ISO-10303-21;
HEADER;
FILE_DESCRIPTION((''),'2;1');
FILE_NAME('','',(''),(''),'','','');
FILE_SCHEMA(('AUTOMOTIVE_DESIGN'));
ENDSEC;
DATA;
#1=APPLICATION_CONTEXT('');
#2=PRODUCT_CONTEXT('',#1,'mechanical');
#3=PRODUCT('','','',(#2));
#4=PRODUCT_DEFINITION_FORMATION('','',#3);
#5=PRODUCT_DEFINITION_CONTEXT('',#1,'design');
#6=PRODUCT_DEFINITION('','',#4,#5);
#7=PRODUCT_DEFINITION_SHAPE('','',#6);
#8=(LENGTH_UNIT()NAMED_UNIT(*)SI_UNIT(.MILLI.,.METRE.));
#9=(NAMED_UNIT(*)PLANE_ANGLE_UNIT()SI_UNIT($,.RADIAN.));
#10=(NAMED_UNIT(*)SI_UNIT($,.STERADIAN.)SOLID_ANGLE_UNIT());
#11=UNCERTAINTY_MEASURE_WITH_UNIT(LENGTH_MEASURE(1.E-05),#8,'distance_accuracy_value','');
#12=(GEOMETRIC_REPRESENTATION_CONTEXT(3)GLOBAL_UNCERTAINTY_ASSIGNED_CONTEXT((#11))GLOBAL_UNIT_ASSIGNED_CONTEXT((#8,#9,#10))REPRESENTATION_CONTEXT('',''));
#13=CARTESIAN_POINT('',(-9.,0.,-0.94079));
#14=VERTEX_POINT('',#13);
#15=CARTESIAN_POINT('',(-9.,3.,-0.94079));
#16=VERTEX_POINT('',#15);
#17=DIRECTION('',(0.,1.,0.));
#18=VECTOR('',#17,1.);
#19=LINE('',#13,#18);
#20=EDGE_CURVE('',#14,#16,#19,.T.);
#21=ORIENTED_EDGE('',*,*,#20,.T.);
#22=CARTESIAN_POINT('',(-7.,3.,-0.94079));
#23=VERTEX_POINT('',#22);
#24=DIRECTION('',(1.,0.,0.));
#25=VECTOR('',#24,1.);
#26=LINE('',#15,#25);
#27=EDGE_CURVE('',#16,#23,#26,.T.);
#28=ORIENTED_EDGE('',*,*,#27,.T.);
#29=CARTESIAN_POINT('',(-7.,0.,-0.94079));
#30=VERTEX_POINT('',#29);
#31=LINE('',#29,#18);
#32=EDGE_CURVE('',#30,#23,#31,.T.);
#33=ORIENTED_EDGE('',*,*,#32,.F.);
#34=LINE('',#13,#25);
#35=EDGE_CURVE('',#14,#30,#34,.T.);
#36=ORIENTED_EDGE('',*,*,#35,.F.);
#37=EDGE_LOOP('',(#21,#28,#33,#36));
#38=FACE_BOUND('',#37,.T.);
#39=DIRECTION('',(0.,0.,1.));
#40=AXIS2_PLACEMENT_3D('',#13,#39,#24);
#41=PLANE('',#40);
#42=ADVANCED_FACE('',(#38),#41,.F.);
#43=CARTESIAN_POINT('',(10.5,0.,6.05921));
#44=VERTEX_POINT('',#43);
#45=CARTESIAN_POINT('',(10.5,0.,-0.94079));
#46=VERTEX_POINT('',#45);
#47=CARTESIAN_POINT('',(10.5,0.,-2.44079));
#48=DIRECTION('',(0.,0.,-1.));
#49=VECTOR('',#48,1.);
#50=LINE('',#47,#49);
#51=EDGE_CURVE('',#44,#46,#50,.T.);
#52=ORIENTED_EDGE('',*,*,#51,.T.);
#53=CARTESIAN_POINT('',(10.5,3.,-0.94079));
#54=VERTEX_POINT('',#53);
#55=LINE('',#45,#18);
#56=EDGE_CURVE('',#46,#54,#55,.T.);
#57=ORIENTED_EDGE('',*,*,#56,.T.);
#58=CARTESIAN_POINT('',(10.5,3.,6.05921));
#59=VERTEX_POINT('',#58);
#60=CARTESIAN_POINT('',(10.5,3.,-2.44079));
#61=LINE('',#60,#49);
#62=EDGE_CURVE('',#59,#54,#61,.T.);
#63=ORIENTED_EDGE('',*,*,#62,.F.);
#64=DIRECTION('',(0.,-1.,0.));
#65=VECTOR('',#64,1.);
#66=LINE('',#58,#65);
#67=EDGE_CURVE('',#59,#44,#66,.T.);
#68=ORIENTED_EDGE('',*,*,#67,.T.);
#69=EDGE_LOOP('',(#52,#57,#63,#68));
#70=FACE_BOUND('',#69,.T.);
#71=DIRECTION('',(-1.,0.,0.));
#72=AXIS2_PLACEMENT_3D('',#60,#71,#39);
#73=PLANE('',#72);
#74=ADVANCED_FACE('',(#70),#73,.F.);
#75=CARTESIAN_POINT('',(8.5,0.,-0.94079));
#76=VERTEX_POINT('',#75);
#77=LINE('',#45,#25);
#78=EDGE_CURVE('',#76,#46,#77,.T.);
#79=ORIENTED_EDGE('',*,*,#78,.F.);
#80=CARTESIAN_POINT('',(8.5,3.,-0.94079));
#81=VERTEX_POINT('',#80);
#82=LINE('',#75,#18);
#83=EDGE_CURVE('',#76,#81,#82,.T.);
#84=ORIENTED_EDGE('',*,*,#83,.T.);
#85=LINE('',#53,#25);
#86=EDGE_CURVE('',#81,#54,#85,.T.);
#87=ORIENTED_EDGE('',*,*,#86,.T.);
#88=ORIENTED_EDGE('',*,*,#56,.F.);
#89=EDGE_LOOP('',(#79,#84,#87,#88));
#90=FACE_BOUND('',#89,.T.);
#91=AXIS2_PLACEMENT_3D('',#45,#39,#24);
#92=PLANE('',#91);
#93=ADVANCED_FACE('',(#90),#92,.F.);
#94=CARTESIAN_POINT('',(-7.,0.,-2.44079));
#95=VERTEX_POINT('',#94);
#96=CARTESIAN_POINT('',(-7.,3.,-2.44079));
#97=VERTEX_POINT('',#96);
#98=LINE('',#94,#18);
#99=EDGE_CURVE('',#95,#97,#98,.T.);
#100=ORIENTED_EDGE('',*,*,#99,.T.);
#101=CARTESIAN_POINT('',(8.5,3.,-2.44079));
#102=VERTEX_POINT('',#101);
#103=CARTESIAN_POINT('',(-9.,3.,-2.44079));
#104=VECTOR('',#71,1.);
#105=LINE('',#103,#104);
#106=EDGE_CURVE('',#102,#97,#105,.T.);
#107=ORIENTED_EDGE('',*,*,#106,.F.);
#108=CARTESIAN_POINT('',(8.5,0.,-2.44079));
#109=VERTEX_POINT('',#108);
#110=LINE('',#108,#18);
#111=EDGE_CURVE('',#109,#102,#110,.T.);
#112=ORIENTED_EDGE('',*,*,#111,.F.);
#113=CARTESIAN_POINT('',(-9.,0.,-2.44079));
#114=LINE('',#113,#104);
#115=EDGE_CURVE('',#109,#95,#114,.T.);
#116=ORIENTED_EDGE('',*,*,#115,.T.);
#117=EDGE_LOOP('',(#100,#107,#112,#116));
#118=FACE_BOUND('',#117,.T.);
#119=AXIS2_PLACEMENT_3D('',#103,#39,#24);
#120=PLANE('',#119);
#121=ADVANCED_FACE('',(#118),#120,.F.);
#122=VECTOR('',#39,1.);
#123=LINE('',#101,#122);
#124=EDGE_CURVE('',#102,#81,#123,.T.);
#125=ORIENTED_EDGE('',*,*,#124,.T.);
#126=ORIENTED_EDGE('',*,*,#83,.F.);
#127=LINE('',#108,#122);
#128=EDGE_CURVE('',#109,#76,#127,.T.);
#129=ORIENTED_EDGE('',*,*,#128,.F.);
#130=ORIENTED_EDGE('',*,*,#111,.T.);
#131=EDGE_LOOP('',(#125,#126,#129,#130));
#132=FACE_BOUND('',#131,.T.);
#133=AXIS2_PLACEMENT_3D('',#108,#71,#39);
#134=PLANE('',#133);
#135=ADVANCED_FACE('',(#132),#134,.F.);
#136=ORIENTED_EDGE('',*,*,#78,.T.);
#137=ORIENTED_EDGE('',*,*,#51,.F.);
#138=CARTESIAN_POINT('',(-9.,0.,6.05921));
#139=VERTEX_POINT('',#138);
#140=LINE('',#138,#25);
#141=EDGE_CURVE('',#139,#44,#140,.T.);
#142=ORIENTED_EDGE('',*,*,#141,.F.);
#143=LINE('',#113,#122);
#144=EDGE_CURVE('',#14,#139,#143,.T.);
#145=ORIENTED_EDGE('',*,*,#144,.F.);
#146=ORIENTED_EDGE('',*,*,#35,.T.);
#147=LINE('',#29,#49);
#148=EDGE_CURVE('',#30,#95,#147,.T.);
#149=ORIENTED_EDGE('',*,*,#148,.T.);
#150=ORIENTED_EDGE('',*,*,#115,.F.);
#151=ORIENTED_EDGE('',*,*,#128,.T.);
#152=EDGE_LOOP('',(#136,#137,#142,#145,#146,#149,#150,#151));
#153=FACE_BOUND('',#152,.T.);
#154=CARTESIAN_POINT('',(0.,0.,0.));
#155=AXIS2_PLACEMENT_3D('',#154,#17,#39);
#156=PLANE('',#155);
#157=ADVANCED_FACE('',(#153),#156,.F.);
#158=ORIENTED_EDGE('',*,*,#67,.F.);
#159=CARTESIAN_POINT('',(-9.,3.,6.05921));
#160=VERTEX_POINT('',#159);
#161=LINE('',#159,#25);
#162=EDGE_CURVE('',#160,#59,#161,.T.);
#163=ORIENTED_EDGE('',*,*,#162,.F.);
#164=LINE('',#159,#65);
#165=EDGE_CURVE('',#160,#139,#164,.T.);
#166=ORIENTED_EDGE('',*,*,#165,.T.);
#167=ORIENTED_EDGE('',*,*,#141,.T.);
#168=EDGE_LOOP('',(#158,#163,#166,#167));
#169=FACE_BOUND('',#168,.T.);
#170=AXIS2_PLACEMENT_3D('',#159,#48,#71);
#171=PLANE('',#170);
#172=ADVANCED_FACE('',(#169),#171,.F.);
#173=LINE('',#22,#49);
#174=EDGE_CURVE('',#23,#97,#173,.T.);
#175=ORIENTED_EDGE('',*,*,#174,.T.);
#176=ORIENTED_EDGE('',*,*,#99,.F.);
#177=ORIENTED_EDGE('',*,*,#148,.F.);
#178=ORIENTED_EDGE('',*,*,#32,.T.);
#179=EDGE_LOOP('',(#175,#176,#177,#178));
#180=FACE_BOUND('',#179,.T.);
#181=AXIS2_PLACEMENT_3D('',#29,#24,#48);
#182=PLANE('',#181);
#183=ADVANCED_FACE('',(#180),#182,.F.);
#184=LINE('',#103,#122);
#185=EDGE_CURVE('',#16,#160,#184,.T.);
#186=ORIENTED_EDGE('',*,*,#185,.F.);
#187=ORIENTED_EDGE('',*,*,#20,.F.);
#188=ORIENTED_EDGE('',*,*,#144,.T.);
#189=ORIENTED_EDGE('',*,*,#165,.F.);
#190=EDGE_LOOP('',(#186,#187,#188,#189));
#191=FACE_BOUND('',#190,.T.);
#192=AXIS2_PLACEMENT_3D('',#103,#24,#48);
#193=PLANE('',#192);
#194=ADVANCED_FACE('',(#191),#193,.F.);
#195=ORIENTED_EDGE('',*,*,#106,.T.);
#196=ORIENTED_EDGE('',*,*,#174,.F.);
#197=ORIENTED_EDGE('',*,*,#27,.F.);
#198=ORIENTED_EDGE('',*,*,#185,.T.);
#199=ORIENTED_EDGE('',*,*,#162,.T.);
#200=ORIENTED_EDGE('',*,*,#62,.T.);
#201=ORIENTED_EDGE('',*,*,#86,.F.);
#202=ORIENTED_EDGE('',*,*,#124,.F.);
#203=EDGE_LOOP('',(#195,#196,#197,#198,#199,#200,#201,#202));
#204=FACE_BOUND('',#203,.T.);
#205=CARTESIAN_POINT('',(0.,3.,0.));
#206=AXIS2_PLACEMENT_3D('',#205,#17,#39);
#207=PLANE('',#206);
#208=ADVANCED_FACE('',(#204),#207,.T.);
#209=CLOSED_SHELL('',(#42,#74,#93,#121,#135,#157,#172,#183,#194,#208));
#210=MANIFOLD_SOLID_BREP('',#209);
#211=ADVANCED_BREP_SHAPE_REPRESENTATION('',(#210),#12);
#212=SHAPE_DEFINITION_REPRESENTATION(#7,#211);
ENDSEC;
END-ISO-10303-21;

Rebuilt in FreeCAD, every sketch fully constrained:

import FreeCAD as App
import Part
import Sketcher
from FreeCAD import Vector
Q = App.Units.Quantity


def add_polygon(sketch, points):
    """Adds a closed chain of lines whose ends are joined by coincident constraints."""
    first, n = sketch.GeometryCount, len(points)
    for a, b in zip(points, points[1:] + points[:1]):
        sketch.addGeometry(Part.LineSegment(App.Vector(*a, 0), App.Vector(*b, 0)), False)
    for i in range(n):
        sketch.addConstraint(Sketcher.Constraint("Coincident", first + i, 2, first + (i + 1) % n, 1))

doc = App.newDocument("Part")
body = doc.addObject("PartDesign::Body", "Body")

# Sketch on XZ plane
sketch1 = body.newObject("Sketcher::SketchObject", "Sketch")
sketch1.AttachmentSupport = (doc.getObject("XZ_Plane"), [""])
sketch1.MapMode = "FlatFace"
add_polygon(sketch1, [(-9, -2), (-9, 6), (10, 6), (10, -2)])  # lines 0-3
sketch1.addConstraint([
    Sketcher.Constraint("Vertical", 0),
    Sketcher.Constraint("Horizontal", 1),
    Sketcher.Constraint("Vertical", 2),
    Sketcher.Constraint("Horizontal", 3),
    Sketcher.Constraint("DistanceX", 1, 1, 1, 2, Q("19.5 mm")),
    Sketcher.Constraint("DistanceY", 0, 1, 0, 2, Q("8.5 mm")),
    Sketcher.Constraint("DistanceX", 0, 2, -1, 1, Q("9 mm")),
    Sketcher.Constraint("DistanceY", -1, 1, 0, 2, Q("6.05921 mm")),
])
pad1 = body.newObject("PartDesign::Pad", "Pad")
pad1.Profile = sketch1
pad1.Length = 3
pad1.Reversed = True

# Sketch on XZ plane
sketch2 = body.newObject("Sketcher::SketchObject", "Sketch001")
sketch2.AttachmentSupport = (doc.getObject("XZ_Plane"), [""])
sketch2.MapMode = "FlatFace"
sketch2.AttachmentOffset = App.Placement(Vector(0, 0, -3), App.Rotation())
add_polygon(sketch2, [(-9, -2.4), (-9, -0.9), (-7, -0.9), (-7, -2.4)])  # lines 0-3
add_polygon(sketch2, [(8.5, -2.4), (8.5, -0.9), (10.5, -0.9), (10.5, -2.4)])  # lines 4-7
sketch2.addConstraint([
    Sketcher.Constraint("Vertical", 0),
    Sketcher.Constraint("Horizontal", 1),
    Sketcher.Constraint("Vertical", 2),
    Sketcher.Constraint("Horizontal", 3),
    Sketcher.Constraint("Vertical", 4),
    Sketcher.Constraint("Horizontal", 5),
    Sketcher.Constraint("Vertical", 6),
    Sketcher.Constraint("Horizontal", 7),
    Sketcher.Constraint("Horizontal", 1, 2, 4, 2),
    Sketcher.Constraint("Horizontal", 3, 2, 6, 2),
    Sketcher.Constraint("Equal", 3, 5),
    Sketcher.Constraint("DistanceX", 1, 1, 1, 2, Q("2 mm")),
    Sketcher.Constraint("DistanceY", 0, 1, 0, 2, Q("1.5 mm")),
    Sketcher.Constraint("DistanceX", 0, 2, -1, 1, Q("9 mm")),
    Sketcher.Constraint("DistanceX", -1, 1, 4, 2, Q("8.5 mm")),
    Sketcher.Constraint("DistanceY", 0, 2, -1, 1, Q("0.94079 mm")),
])
pocket1 = body.newObject("PartDesign::Pocket", "Pocket")
pocket1.Profile = sketch2
pocket1.Type = "ThroughAll"
pocket1.Reversed = True

doc.recompute()
